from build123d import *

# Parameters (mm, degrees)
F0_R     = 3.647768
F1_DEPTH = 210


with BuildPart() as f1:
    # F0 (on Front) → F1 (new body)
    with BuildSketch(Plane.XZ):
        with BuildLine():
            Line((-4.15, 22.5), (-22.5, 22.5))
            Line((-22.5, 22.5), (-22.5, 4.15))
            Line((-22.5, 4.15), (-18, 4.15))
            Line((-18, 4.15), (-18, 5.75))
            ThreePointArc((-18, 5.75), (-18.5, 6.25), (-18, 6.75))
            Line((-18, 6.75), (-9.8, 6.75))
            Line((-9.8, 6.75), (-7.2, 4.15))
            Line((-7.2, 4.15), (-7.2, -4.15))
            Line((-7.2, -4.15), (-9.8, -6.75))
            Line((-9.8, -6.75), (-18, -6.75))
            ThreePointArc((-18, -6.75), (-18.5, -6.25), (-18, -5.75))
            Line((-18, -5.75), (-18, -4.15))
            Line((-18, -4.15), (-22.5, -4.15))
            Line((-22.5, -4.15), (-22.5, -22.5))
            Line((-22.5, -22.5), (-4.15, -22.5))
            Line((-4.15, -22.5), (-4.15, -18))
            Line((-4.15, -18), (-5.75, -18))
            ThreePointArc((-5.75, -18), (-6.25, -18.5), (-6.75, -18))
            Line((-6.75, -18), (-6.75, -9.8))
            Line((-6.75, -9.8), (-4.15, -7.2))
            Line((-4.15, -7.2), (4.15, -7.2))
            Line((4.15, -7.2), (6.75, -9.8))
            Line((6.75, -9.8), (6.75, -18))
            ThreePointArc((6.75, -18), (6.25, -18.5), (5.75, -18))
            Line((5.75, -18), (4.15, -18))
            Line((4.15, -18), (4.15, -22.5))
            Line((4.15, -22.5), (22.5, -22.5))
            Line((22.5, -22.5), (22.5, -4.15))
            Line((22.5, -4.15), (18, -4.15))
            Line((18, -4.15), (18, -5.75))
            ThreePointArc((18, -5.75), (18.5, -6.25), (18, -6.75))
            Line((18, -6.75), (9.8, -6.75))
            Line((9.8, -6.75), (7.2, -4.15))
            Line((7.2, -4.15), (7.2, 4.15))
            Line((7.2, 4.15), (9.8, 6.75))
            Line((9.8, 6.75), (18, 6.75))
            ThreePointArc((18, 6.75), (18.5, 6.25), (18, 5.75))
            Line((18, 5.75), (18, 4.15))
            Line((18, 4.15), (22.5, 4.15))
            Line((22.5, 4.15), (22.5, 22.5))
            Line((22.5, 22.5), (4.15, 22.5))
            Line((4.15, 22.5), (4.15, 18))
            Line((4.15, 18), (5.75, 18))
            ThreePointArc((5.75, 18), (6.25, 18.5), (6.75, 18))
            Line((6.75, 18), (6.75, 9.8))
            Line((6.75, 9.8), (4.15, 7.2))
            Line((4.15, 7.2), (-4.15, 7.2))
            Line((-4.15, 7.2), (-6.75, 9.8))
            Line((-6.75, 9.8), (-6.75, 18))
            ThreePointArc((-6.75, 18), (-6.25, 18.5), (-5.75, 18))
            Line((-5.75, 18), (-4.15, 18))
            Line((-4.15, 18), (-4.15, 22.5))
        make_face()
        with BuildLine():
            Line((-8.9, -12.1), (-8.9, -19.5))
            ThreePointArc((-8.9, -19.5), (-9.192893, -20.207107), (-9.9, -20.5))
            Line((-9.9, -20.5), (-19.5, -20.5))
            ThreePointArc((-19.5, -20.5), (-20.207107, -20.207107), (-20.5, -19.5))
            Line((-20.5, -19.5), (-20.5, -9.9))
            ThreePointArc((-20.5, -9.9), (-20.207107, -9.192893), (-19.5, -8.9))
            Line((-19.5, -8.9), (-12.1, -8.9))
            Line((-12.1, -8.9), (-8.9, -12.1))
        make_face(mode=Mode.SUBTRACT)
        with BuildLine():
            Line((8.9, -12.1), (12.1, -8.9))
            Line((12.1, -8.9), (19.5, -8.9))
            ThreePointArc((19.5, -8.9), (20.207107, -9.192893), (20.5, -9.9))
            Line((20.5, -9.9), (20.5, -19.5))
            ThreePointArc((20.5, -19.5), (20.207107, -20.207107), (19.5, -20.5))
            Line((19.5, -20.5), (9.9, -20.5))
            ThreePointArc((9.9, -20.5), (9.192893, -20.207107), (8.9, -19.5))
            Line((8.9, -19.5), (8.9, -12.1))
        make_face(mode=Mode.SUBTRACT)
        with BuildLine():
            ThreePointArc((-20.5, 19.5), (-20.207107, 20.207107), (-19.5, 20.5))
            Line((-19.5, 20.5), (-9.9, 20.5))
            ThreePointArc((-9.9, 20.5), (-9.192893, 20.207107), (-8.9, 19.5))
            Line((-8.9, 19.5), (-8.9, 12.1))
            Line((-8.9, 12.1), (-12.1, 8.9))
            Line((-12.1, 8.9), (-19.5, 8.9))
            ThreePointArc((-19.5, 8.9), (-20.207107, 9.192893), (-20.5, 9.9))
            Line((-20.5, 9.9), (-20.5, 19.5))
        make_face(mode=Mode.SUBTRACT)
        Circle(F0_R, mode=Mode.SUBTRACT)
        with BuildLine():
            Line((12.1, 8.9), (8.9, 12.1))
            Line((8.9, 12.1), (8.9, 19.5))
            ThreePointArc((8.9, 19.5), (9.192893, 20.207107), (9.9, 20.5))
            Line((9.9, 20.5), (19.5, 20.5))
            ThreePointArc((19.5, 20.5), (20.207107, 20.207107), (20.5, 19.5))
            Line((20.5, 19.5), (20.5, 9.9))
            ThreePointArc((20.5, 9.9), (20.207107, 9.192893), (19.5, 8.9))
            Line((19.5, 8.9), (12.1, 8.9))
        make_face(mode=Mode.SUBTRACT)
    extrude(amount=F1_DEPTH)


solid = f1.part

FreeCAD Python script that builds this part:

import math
import FreeCAD as App
import Part
import Sketcher

V = App.Vector

doc = App.newDocument("Part")
body = doc.addObject("PartDesign::Body", "Body")

sketch1 = doc.addObject("Sketcher::SketchObject", "Sketch")
body.addObject(sketch1)
sketch1.AttachmentSupport = (doc.XZ_Plane, [""])
sketch1.MapMode = "FlatFace"
sketch1.addGeometry([
    Part.LineSegment(V(-4.2, 22.5, 0), V(-22.5, 22.5, 0)),
    Part.LineSegment(V(-22.5, 22.5, 0), V(-22.5, 4.2, 0)),
    Part.LineSegment(V(-22.5, 4.2, 0), V(-18, 4.2, 0)),
    Part.LineSegment(V(-18, 4.2, 0), V(-18, 5.8, 0)),
    Part.ArcOfCircle(Part.Circle(V(-18, 6.2, 0), V(0, 0, 1), 0.5), math.radians(90), math.radians(270)),
    Part.LineSegment(V(-18, 6.8, 0), V(-9.8, 6.8, 0)),
    Part.LineSegment(V(-9.8, 6.8, 0), V(-7.2, 4.2, 0)),
    Part.LineSegment(V(-7.2, 4.2, 0), V(-7.2, -4.2, 0)),
    Part.LineSegment(V(-7.2, -4.2, 0), V(-9.8, -6.8, 0)),
    Part.LineSegment(V(-9.8, -6.8, 0), V(-18, -6.8, 0)),
    Part.ArcOfCircle(Part.Circle(V(-18, -6.2, 0), V(0, 0, 1), 0.5), math.radians(90), math.radians(270)),
    Part.LineSegment(V(-18, -5.8, 0), V(-18, -4.2, 0)),
    Part.LineSegment(V(-18, -4.2, 0), V(-22.5, -4.2, 0)),
    Part.LineSegment(V(-22.5, -4.2, 0), V(-22.5, -22.5, 0)),
    Part.LineSegment(V(-22.5, -22.5, 0), V(-4.2, -22.5, 0)),
    Part.LineSegment(V(-4.2, -22.5, 0), V(-4.2, -18, 0)),
    Part.LineSegment(V(-4.2, -18, 0), V(-5.8, -18, 0)),
    Part.ArcOfCircle(Part.Circle(V(-6.2, -18, 0), V(0, 0, 1), 0.5), math.radians(180), math.radians(360)),
    Part.LineSegment(V(-6.8, -18, 0), V(-6.8, -9.8, 0)),
    Part.LineSegment(V(-6.8, -9.8, 0), V(-4.2, -7.2, 0)),
    Part.LineSegment(V(-4.2, -7.2, 0), V(4.2, -7.2, 0)),
    Part.LineSegment(V(4.2, -7.2, 0), V(6.8, -9.8, 0)),
    Part.LineSegment(V(6.8, -9.8, 0), V(6.8, -18, 0)),
    Part.ArcOfCircle(Part.Circle(V(6.2, -18, 0), V(0, 0, 1), 0.5), math.radians(180), math.radians(360)),
    Part.LineSegment(V(5.8, -18, 0), V(4.2, -18, 0)),
    Part.LineSegment(V(4.2, -18, 0), V(4.2, -22.5, 0)),
    Part.LineSegment(V(4.2, -22.5, 0), V(22.5, -22.5, 0)),
    Part.LineSegment(V(22.5, -22.5, 0), V(22.5, -4.2, 0)),
    Part.LineSegment(V(22.5, -4.2, 0), V(18, -4.2, 0)),
    Part.LineSegment(V(18, -4.2, 0), V(18, -5.8, 0)),
    Part.ArcOfCircle(Part.Circle(V(18, -6.2, 0), V(0, 0, 1), 0.5), math.radians(-90), math.radians(90)),
    Part.LineSegment(V(18, -6.8, 0), V(9.8, -6.8, 0)),
    Part.LineSegment(V(9.8, -6.8, 0), V(7.2, -4.2, 0)),
    Part.LineSegment(V(7.2, -4.2, 0), V(7.2, 4.2, 0)),
    Part.LineSegment(V(7.2, 4.2, 0), V(9.8, 6.8, 0)),
    Part.LineSegment(V(9.8, 6.8, 0), V(18, 6.8, 0)),
    Part.ArcOfCircle(Part.Circle(V(18, 6.2, 0), V(0, 0, 1), 0.5), math.radians(-90), math.radians(90)),
    Part.LineSegment(V(18, 5.8, 0), V(18, 4.2, 0)),
    Part.LineSegment(V(18, 4.2, 0), V(22.5, 4.2, 0)),
    Part.LineSegment(V(22.5, 4.2, 0), V(22.5, 22.5, 0)),
    Part.LineSegment(V(22.5, 22.5, 0), V(4.2, 22.5, 0)),
    Part.LineSegment(V(4.2, 22.5, 0), V(4.2, 18, 0)),
    Part.LineSegment(V(4.2, 18, 0), V(5.8, 18, 0)),
    Part.ArcOfCircle(Part.Circle(V(6.2, 18, 0), V(0, 0, 1), 0.5), math.radians(0), math.radians(180)),
    Part.LineSegment(V(6.8, 18, 0), V(6.8, 9.8, 0)),
    Part.LineSegment(V(6.8, 9.8, 0), V(4.2, 7.2, 0)),
    Part.LineSegment(V(4.2, 7.2, 0), V(-4.2, 7.2, 0)),
    Part.LineSegment(V(-4.2, 7.2, 0), V(-6.8, 9.8, 0)),
    Part.LineSegment(V(-6.8, 9.8, 0), V(-6.8, 18, 0)),
    Part.ArcOfCircle(Part.Circle(V(-6.2, 18, 0), V(0, 0, 1), 0.5), math.radians(0), math.radians(180)),
    Part.LineSegment(V(-5.8, 18, 0), V(-4.2, 18, 0)),
    Part.LineSegment(V(-4.2, 18, 0), V(-4.2, 22.5, 0)),
    Part.LineSegment(V(-12.1, -8.9, 0), V(-8.9, -12.1, 0)),
    Part.LineSegment(V(-8.9, -12.1, 0), V(-8.9, -19.5, 0)),
    Part.ArcOfCircle(Part.Circle(V(-9.9, -19.5, 0), V(0, 0, 1), 1), math.radians(-90), math.radians(0)),
    Part.LineSegment(V(-9.9, -20.5, 0), V(-19.5, -20.5, 0)),
    Part.ArcOfCircle(Part.Circle(V(-19.5, -19.5, 0), V(0, 0, 1), 1), math.radians(180), math.radians(270)),
    Part.LineSegment(V(-20.5, -19.5, 0), V(-20.5, -9.9, 0)),
    Part.ArcOfCircle(Part.Circle(V(-19.5, -9.9, 0), V(0, 0, 1), 1), math.radians(90), math.radians(180)),
    Part.LineSegment(V(-19.5, -8.9, 0), V(-12.1, -8.9, 0)),
    Part.LineSegment(V(8.9, -19.5, 0), V(8.9, -12.1, 0)),
    Part.LineSegment(V(8.9, -12.1, 0), V(12.1, -8.9, 0)),
    Part.LineSegment(V(12.1, -8.9, 0), V(19.5, -8.9, 0)),
    Part.ArcOfCircle(Part.Circle(V(19.5, -9.9, 0), V(0, 0, 1), 1), math.radians(0), math.radians(90)),
    Part.LineSegment(V(20.5, -9.9, 0), V(20.5, -19.5, 0)),
    Part.ArcOfCircle(Part.Circle(V(19.5, -19.5, 0), V(0, 0, 1), 1), math.radians(-90), math.radians(0)),
    Part.LineSegment(V(19.5, -20.5, 0), V(9.9, -20.5, 0)),
    Part.ArcOfCircle(Part.Circle(V(9.9, -19.5, 0), V(0, 0, 1), 1), math.radians(180), math.radians(270)),
    Part.LineSegment(V(-20.5, 9.9, 0), V(-20.5, 19.5, 0)),
    Part.ArcOfCircle(Part.Circle(V(-19.5, 19.5, 0), V(0, 0, 1), 1), math.radians(90), math.radians(180)),
    Part.LineSegment(V(-19.5, 20.5, 0), V(-9.9, 20.5, 0)),
    Part.ArcOfCircle(Part.Circle(V(-9.9, 19.5, 0), V(0, 0, 1), 1), math.radians(0), math.radians(90)),
    Part.LineSegment(V(-8.9, 19.5, 0), V(-8.9, 12.1, 0)),
    Part.LineSegment(V(-8.9, 12.1, 0), V(-12.1, 8.9, 0)),
    Part.LineSegment(V(-12.1, 8.9, 0), V(-19.5, 8.9, 0)),
    Part.ArcOfCircle(Part.Circle(V(-19.5, 9.9, 0), V(0, 0, 1), 1), math.radians(180), math.radians(270)),
    Part.Circle(V(0, 0, 0), V(0, 0, 1), 3.6),
    Part.LineSegment(V(19.5, 8.9, 0), V(12.1, 8.9, 0)),
    Part.LineSegment(V(12.1, 8.9, 0), V(8.9, 12.1, 0)),
    Part.LineSegment(V(8.9, 12.1, 0), V(8.9, 19.5, 0)),
    Part.ArcOfCircle(Part.Circle(V(9.9, 19.5, 0), V(0, 0, 1), 1), math.radians(90), math.radians(180)),
    Part.LineSegment(V(9.9, 20.5, 0), V(19.5, 20.5, 0)),
    Part.ArcOfCircle(Part.Circle(V(19.5, 19.5, 0), V(0, 0, 1), 1), math.radians(0), math.radians(90)),
    Part.LineSegment(V(20.5, 19.5, 0), V(20.5, 9.9, 0)),
    Part.ArcOfCircle(Part.Circle(V(19.5, 9.9, 0), V(0, 0, 1), 1), math.radians(-90), math.radians(0)),
], False)
sketch1.addConstraint([
    Sketcher.Constraint("Coincident", 0, 2, 1, 1),
    Sketcher.Constraint("Coincident", 1, 2, 2, 1),
    Sketcher.Constraint("Coincident", 2, 2, 3, 1),
    Sketcher.Constraint("Coincident", 3, 2, 4, 2),
    Sketcher.Constraint("Tangent", 4, 1, 5, 1),
    Sketcher.Constraint("Coincident", 5, 2, 6, 1),
    Sketcher.Constraint("Coincident", 6, 2, 7, 1),
    Sketcher.Constraint("Coincident", 7, 2, 8, 1),
    Sketcher.Constraint("Coincident", 8, 2, 9, 1),
    Sketcher.Constraint("Tangent", 9, 2, 10, 2),
    Sketcher.Constraint("Coincident", 10, 1, 11, 1),
    Sketcher.Constraint("Coincident", 11, 2, 12, 1),
    Sketcher.Constraint("Coincident", 12, 2, 13, 1),
    Sketcher.Constraint("Coincident", 13, 2, 14, 1),
    Sketcher.Constraint("Coincident", 14, 2, 15, 1),
    Sketcher.Constraint("Coincident", 15, 2, 16, 1),
    Sketcher.Constraint("Coincident", 16, 2, 17, 2),
    Sketcher.Constraint("Tangent", 17, 1, 18, 1),
    Sketcher.Constraint("Coincident", 18, 2, 19, 1),
    Sketcher.Constraint("Coincident", 19, 2, 20, 1),
    Sketcher.Constraint("Coincident", 20, 2, 21, 1),
    Sketcher.Constraint("Coincident", 21, 2, 22, 1),
    Sketcher.Constraint("Tangent", 22, 2, 23, 2),
    Sketcher.Constraint("Coincident", 23, 1, 24, 1),
    Sketcher.Constraint("Coincident", 24, 2, 25, 1),
    Sketcher.Constraint("Coincident", 25, 2, 26, 1),
    Sketcher.Constraint("Coincident", 26, 2, 27, 1),
    Sketcher.Constraint("Coincident", 27, 2, 28, 1),
    Sketcher.Constraint("Coincident", 28, 2, 29, 1),
    Sketcher.Constraint("Coincident", 29, 2, 30, 2),
    Sketcher.Constraint("Tangent", 30, 1, 31, 1),
    Sketcher.Constraint("Coincident", 31, 2, 32, 1),
    Sketcher.Constraint("Coincident", 32, 2, 33, 1),
    Sketcher.Constraint("Coincident", 33, 2, 34, 1),
    Sketcher.Constraint("Coincident", 34, 2, 35, 1),
    Sketcher.Constraint("Tangent", 35, 2, 36, 2),
    Sketcher.Constraint("Coincident", 36, 1, 37, 1),
    Sketcher.Constraint("Coincident", 37, 2, 38, 1),
    Sketcher.Constraint("Coincident", 38, 2, 39, 1),
    Sketcher.Constraint("Coincident", 39, 2, 40, 1),
    Sketcher.Constraint("Coincident", 40, 2, 41, 1),
    Sketcher.Constraint("Coincident", 41, 2, 42, 1),
    Sketcher.Constraint("Coincident", 42, 2, 43, 2),
    Sketcher.Constraint("Tangent", 43, 1, 44, 1),
    Sketcher.Constraint("Coincident", 44, 2, 45, 1),
    Sketcher.Constraint("Coincident", 45, 2, 46, 1),
    Sketcher.Constraint("Coincident", 46, 2, 47, 1),
    Sketcher.Constraint("Coincident", 47, 2, 48, 1),
    Sketcher.Constraint("Tangent", 48, 2, 49, 2),
    Sketcher.Constraint("Coincident", 49, 1, 50, 1),
    Sketcher.Constraint("Coincident", 50, 2, 51, 1),
    Sketcher.Constraint("Coincident", 51, 2, 0, 1),
    Sketcher.Constraint("Coincident", 52, 2, 53, 1),
    Sketcher.Constraint("Tangent", 53, 2, 54, 2),
    Sketcher.Constraint("Tangent", 54, 1, 55, 1),
    Sketcher.Constraint("Tangent", 55, 2, 56, 2),
    Sketcher.Constraint("Tangent", 56, 1, 57, 1),
    Sketcher.Constraint("Tangent", 57, 2, 58, 2),
    Sketcher.Constraint("Tangent", 58, 1, 59, 1),
    Sketcher.Constraint("Coincident", 59, 2, 52, 1),
    Sketcher.Constraint("Coincident", 60, 2, 61, 1),
    Sketcher.Constraint("Coincident", 61, 2, 62, 1),
    Sketcher.Constraint("Tangent", 62, 2, 63, 2),
    Sketcher.Constraint("Tangent", 63, 1, 64, 1),
    Sketcher.Constraint("Tangent", 64, 2, 65, 2),
    Sketcher.Constraint("Tangent", 65, 1, 66, 1),
    Sketcher.Constraint("Tangent", 66, 2, 67, 2),
    Sketcher.Constraint("Tangent", 67, 1, 60, 1),
    Sketcher.Constraint("Tangent", 68, 2, 69, 2),
    Sketcher.Constraint("Tangent", 69, 1, 70, 1),
    Sketcher.Constraint("Tangent", 70, 2, 71, 2),
    Sketcher.Constraint("Tangent", 71, 1, 72, 1),
    Sketcher.Constraint("Coincident", 72, 2, 73, 1),
    Sketcher.Constraint("Coincident", 73, 2, 74, 1),
    Sketcher.Constraint("Tangent", 74, 2, 75, 2),
    Sketcher.Constraint("Tangent", 75, 1, 68, 1),
    Sketcher.Constraint("Coincident", 77, 2, 78, 1),
    Sketcher.Constraint("Coincident", 78, 2, 79, 1),
    Sketcher.Constraint("Tangent", 79, 2, 80, 2),
    Sketcher.Constraint("Tangent", 80, 1, 81, 1),
    Sketcher.Constraint("Tangent", 81, 2, 82, 2),
    Sketcher.Constraint("Tangent", 82, 1, 83, 1),
    Sketcher.Constraint("Tangent", 83, 2, 84, 2),
    Sketcher.Constraint("Tangent", 84, 1, 77, 1),
    Sketcher.Constraint("Horizontal", 0),
    Sketcher.Constraint("Vertical", 1),
    Sketcher.Constraint("Horizontal", 2),
    Sketcher.Constraint("Vertical", 3),
    Sketcher.Constraint("Horizontal", 5),
    Sketcher.Constraint("Vertical", 7),
    Sketcher.Constraint("Horizontal", 9),
    Sketcher.Constraint("Vertical", 11),
    Sketcher.Constraint("Horizontal", 12),
    Sketcher.Constraint("Vertical", 13),
    Sketcher.Constraint("Horizontal", 14),
    Sketcher.Constraint("Vertical", 15),
    Sketcher.Constraint("Horizontal", 16),
    Sketcher.Constraint("Vertical", 18),
    Sketcher.Constraint("Horizontal", 20),
    Sketcher.Constraint("Vertical", 22),
    Sketcher.Constraint("Horizontal", 24),
    Sketcher.Constraint("Vertical", 25),
    Sketcher.Constraint("Horizontal", 26),
    Sketcher.Constraint("Vertical", 27),
    Sketcher.Constraint("Horizontal", 28),
    Sketcher.Constraint("Vertical", 29),
    Sketcher.Constraint("Horizontal", 31),
    Sketcher.Constraint("Vertical", 33),
    Sketcher.Constraint("Horizontal", 35),
    Sketcher.Constraint("Vertical", 37),
    Sketcher.Constraint("Horizontal", 38),
    Sketcher.Constraint("Vertical", 39),
    Sketcher.Constraint("Horizontal", 40),
    Sketcher.Constraint("Vertical", 41),
    Sketcher.Constraint("Horizontal", 42),
    Sketcher.Constraint("Vertical", 44),
    Sketcher.Constraint("Horizontal", 46),
    Sketcher.Constraint("Vertical", 48),
    Sketcher.Constraint("Horizontal", 50),
    Sketcher.Constraint("Vertical", 51),
    Sketcher.Constraint("Vertical", 53),
    Sketcher.Constraint("Horizontal", 55),
    Sketcher.Constraint("Vertical", 57),
    Sketcher.Constraint("Horizontal", 59),
    Sketcher.Constraint("Vertical", 60),
    Sketcher.Constraint("Horizontal", 62),
    Sketcher.Constraint("Vertical", 64),
    Sketcher.Constraint("Horizontal", 66),
    Sketcher.Constraint("Vertical", 68),
    Sketcher.Constraint("Horizontal", 70),
    Sketcher.Constraint("Vertical", 72),
    Sketcher.Constraint("Horizontal", 74),
    Sketcher.Constraint("Horizontal", 77),
    Sketcher.Constraint("Vertical", 79),
    Sketcher.Constraint("Horizontal", 81),
    Sketcher.Constraint("Vertical", 83),
    Sketcher.Constraint("Coincident", 76, 3, -1, 1),
    Sketcher.Constraint("Equal", 4, 10),
    Sketcher.Constraint("Equal", 10, 17),
    Sketcher.Constraint("Equal", 17, 23),
    Sketcher.Constraint("Equal", 23, 30),
    Sketcher.Constraint("Equal", 30, 36),
    Sketcher.Constraint("Equal", 36, 43),
    Sketcher.Constraint("Equal", 43, 49),
    Sketcher.Constraint("Equal", 54, 56),
    Sketcher.Constraint("Equal", 56, 58),
    Sketcher.Constraint("Equal", 58, 63),
    Sketcher.Constraint("Equal", 63, 65),
    Sketcher.Constraint("Equal", 65, 67),
    Sketcher.Constraint("Equal", 67, 69),
    Sketcher.Constraint("Equal", 69, 71),
    Sketcher.Constraint("Equal", 71, 75),
    Sketcher.Constraint("Equal", 75, 80),
    Sketcher.Constraint("Equal", 80, 82),
    Sketcher.Constraint("Equal", 82, 84),
    Sketcher.Constraint("Symmetric", 4, 3, 30, 3, -1, 1),
    Sketcher.Constraint("Symmetric", 10, 3, 36, 3, -1, 1),
    Sketcher.Constraint("Symmetric", 17, 3, 43, 3, -1, 1),
    Sketcher.Constraint("Symmetric", 23, 3, 49, 3, -1, 1),
    Sketcher.Constraint("Symmetric", 65, 3, 69, 3, -1, 1),
    Sketcher.Constraint("Symmetric", 54, 3, 80, 3, -1, 1),
    Sketcher.Constraint("Symmetric", 58, 3, 84, 3, -1, 1),
    Sketcher.Constraint("Symmetric", 0, 2, 26, 2, -1, 1),
    Sketcher.Constraint("Symmetric", 2, 2, 28, 2, -1, 1),
    Sketcher.Constraint("Symmetric", 6, 2, 32, 2, -1, 1),
    Sketcher.Constraint("Symmetric", 11, 2, 37, 2, -1, 1),
    Sketcher.Constraint("Symmetric", 13, 2, 39, 2, -1, 1),
    Sketcher.Constraint("Symmetric", 15, 2, 41, 2, -1, 1),
    Sketcher.Constraint("Symmetric", 19, 2, 45, 2, -1, 1),
    Sketcher.Constraint("Symmetric", 24, 2, 50, 2, -1, 1),
    Sketcher.Constraint("Symmetric", 60, 2, 72, 2, -1, 1),
    Sketcher.Constraint("Symmetric", 61, 2, 73, 2, -1, 1),
    Sketcher.Constraint("Symmetric", 17, 3, 23, 3, -2),
    Sketcher.Constraint("Symmetric", 10, 3, 30, 3, -2),
    Sketcher.Constraint("Symmetric", 58, 3, 63, 3, -2),
    Sketcher.Constraint("Symmetric", 54, 3, 67, 3, -2),
    Sketcher.Constraint("Symmetric", 15, 2, 24, 2, -2),
    Sketcher.Constraint("Symmetric", 13, 2, 26, 2, -2),
    Sketcher.Constraint("Symmetric", 11, 2, 28, 2, -2),
    Sketcher.Constraint("Perpendicular", 6, 8),
    Sketcher.Constraint("Parallel", 8, 19),
    Sketcher.Constraint("Perpendicular", 19, 21),
    Sketcher.Constraint("Parallel", 21, 32),
    Sketcher.Constraint("Perpendicular", 32, 34),
    Sketcher.Constraint("Parallel", 34, 45),
    Sketcher.Constraint("Perpendicular", 45, 47),
    Sketcher.Constraint("Parallel", 47, 52),
    Sketcher.Constraint("Perpendicular", 52, 61),
    Sketcher.Constraint("Perpendicular", 73, 78),
    Sketcher.Constraint("Horizontal", 2, 2, 6, 2),
    Sketcher.Constraint("Horizontal", 7, 2, 11, 2),
    Sketcher.Constraint("Horizontal", 23, 3, 15, 2),
    Sketcher.Constraint("Horizontal", 18, 2, 21, 2),
    Sketcher.Constraint("Horizontal", 6, 2, 33, 2),
    Sketcher.Constraint("Horizontal", 44, 2, 47, 2),
    Sketcher.Constraint("Horizontal", 52, 2, 60, 2),
    Sketcher.Constraint("Horizontal", 72, 2, 78, 2),
    Sketcher.Constraint("Vertical", 10, 3, 2, 2),
    Sketcher.Constraint("Vertical", 5, 2, 8, 2),
    Sketcher.Constraint("Vertical", 15, 2, 19, 2),
    Sketcher.Constraint("Equal", 40, 1),
    Sketcher.Constraint("Equal", 50, 3),
    Sketcher.Constraint("Equal", 46, 7),
    Sketcher.Constraint("Equal", 38, 15),
    Sketcher.Constraint("Equal", 35, 18),
    Sketcher.Constraint("Equal", 77, 53),
    Sketcher.Constraint("Radius", 54, 0.999999),
    Sketcher.Constraint("Radius", 4, 0.5),
    Sketcher.Constraint("DistanceX", 2, 1, 2, 2, 4.5),
    Sketcher.Constraint("DistanceX", 5, 1, 5, 2, 8.2),
    Sketcher.Constraint("DistanceX", 16, 2, 16, 1, 1.6),
    Sketcher.Constraint("DistanceX", 20, 1, 20, 2, 8.3),
    Sketcher.Constraint("DistanceX", 55, 2, 55, 1, 9.6),
    Sketcher.Constraint("DistanceX", 59, 1, 59, 2, 7.4),
    Sketcher.Constraint("DistanceX", 4, 3, -1, 1, 18.0),
    Sketcher.Constraint("DistanceX", 54, 3, -1, 1, 9.899999),
    Sketcher.Constraint("DistanceY", 54, 3, -1, 1, 19.500001),
    Sketcher.Constraint("Diameter", 76, 7.295536),
])
pad1 = doc.addObject("PartDesign::Pad", "Pad")
body.addObject(pad1)
pad1.Profile = sketch1
pad1.Length = 210

doc.recompute()
